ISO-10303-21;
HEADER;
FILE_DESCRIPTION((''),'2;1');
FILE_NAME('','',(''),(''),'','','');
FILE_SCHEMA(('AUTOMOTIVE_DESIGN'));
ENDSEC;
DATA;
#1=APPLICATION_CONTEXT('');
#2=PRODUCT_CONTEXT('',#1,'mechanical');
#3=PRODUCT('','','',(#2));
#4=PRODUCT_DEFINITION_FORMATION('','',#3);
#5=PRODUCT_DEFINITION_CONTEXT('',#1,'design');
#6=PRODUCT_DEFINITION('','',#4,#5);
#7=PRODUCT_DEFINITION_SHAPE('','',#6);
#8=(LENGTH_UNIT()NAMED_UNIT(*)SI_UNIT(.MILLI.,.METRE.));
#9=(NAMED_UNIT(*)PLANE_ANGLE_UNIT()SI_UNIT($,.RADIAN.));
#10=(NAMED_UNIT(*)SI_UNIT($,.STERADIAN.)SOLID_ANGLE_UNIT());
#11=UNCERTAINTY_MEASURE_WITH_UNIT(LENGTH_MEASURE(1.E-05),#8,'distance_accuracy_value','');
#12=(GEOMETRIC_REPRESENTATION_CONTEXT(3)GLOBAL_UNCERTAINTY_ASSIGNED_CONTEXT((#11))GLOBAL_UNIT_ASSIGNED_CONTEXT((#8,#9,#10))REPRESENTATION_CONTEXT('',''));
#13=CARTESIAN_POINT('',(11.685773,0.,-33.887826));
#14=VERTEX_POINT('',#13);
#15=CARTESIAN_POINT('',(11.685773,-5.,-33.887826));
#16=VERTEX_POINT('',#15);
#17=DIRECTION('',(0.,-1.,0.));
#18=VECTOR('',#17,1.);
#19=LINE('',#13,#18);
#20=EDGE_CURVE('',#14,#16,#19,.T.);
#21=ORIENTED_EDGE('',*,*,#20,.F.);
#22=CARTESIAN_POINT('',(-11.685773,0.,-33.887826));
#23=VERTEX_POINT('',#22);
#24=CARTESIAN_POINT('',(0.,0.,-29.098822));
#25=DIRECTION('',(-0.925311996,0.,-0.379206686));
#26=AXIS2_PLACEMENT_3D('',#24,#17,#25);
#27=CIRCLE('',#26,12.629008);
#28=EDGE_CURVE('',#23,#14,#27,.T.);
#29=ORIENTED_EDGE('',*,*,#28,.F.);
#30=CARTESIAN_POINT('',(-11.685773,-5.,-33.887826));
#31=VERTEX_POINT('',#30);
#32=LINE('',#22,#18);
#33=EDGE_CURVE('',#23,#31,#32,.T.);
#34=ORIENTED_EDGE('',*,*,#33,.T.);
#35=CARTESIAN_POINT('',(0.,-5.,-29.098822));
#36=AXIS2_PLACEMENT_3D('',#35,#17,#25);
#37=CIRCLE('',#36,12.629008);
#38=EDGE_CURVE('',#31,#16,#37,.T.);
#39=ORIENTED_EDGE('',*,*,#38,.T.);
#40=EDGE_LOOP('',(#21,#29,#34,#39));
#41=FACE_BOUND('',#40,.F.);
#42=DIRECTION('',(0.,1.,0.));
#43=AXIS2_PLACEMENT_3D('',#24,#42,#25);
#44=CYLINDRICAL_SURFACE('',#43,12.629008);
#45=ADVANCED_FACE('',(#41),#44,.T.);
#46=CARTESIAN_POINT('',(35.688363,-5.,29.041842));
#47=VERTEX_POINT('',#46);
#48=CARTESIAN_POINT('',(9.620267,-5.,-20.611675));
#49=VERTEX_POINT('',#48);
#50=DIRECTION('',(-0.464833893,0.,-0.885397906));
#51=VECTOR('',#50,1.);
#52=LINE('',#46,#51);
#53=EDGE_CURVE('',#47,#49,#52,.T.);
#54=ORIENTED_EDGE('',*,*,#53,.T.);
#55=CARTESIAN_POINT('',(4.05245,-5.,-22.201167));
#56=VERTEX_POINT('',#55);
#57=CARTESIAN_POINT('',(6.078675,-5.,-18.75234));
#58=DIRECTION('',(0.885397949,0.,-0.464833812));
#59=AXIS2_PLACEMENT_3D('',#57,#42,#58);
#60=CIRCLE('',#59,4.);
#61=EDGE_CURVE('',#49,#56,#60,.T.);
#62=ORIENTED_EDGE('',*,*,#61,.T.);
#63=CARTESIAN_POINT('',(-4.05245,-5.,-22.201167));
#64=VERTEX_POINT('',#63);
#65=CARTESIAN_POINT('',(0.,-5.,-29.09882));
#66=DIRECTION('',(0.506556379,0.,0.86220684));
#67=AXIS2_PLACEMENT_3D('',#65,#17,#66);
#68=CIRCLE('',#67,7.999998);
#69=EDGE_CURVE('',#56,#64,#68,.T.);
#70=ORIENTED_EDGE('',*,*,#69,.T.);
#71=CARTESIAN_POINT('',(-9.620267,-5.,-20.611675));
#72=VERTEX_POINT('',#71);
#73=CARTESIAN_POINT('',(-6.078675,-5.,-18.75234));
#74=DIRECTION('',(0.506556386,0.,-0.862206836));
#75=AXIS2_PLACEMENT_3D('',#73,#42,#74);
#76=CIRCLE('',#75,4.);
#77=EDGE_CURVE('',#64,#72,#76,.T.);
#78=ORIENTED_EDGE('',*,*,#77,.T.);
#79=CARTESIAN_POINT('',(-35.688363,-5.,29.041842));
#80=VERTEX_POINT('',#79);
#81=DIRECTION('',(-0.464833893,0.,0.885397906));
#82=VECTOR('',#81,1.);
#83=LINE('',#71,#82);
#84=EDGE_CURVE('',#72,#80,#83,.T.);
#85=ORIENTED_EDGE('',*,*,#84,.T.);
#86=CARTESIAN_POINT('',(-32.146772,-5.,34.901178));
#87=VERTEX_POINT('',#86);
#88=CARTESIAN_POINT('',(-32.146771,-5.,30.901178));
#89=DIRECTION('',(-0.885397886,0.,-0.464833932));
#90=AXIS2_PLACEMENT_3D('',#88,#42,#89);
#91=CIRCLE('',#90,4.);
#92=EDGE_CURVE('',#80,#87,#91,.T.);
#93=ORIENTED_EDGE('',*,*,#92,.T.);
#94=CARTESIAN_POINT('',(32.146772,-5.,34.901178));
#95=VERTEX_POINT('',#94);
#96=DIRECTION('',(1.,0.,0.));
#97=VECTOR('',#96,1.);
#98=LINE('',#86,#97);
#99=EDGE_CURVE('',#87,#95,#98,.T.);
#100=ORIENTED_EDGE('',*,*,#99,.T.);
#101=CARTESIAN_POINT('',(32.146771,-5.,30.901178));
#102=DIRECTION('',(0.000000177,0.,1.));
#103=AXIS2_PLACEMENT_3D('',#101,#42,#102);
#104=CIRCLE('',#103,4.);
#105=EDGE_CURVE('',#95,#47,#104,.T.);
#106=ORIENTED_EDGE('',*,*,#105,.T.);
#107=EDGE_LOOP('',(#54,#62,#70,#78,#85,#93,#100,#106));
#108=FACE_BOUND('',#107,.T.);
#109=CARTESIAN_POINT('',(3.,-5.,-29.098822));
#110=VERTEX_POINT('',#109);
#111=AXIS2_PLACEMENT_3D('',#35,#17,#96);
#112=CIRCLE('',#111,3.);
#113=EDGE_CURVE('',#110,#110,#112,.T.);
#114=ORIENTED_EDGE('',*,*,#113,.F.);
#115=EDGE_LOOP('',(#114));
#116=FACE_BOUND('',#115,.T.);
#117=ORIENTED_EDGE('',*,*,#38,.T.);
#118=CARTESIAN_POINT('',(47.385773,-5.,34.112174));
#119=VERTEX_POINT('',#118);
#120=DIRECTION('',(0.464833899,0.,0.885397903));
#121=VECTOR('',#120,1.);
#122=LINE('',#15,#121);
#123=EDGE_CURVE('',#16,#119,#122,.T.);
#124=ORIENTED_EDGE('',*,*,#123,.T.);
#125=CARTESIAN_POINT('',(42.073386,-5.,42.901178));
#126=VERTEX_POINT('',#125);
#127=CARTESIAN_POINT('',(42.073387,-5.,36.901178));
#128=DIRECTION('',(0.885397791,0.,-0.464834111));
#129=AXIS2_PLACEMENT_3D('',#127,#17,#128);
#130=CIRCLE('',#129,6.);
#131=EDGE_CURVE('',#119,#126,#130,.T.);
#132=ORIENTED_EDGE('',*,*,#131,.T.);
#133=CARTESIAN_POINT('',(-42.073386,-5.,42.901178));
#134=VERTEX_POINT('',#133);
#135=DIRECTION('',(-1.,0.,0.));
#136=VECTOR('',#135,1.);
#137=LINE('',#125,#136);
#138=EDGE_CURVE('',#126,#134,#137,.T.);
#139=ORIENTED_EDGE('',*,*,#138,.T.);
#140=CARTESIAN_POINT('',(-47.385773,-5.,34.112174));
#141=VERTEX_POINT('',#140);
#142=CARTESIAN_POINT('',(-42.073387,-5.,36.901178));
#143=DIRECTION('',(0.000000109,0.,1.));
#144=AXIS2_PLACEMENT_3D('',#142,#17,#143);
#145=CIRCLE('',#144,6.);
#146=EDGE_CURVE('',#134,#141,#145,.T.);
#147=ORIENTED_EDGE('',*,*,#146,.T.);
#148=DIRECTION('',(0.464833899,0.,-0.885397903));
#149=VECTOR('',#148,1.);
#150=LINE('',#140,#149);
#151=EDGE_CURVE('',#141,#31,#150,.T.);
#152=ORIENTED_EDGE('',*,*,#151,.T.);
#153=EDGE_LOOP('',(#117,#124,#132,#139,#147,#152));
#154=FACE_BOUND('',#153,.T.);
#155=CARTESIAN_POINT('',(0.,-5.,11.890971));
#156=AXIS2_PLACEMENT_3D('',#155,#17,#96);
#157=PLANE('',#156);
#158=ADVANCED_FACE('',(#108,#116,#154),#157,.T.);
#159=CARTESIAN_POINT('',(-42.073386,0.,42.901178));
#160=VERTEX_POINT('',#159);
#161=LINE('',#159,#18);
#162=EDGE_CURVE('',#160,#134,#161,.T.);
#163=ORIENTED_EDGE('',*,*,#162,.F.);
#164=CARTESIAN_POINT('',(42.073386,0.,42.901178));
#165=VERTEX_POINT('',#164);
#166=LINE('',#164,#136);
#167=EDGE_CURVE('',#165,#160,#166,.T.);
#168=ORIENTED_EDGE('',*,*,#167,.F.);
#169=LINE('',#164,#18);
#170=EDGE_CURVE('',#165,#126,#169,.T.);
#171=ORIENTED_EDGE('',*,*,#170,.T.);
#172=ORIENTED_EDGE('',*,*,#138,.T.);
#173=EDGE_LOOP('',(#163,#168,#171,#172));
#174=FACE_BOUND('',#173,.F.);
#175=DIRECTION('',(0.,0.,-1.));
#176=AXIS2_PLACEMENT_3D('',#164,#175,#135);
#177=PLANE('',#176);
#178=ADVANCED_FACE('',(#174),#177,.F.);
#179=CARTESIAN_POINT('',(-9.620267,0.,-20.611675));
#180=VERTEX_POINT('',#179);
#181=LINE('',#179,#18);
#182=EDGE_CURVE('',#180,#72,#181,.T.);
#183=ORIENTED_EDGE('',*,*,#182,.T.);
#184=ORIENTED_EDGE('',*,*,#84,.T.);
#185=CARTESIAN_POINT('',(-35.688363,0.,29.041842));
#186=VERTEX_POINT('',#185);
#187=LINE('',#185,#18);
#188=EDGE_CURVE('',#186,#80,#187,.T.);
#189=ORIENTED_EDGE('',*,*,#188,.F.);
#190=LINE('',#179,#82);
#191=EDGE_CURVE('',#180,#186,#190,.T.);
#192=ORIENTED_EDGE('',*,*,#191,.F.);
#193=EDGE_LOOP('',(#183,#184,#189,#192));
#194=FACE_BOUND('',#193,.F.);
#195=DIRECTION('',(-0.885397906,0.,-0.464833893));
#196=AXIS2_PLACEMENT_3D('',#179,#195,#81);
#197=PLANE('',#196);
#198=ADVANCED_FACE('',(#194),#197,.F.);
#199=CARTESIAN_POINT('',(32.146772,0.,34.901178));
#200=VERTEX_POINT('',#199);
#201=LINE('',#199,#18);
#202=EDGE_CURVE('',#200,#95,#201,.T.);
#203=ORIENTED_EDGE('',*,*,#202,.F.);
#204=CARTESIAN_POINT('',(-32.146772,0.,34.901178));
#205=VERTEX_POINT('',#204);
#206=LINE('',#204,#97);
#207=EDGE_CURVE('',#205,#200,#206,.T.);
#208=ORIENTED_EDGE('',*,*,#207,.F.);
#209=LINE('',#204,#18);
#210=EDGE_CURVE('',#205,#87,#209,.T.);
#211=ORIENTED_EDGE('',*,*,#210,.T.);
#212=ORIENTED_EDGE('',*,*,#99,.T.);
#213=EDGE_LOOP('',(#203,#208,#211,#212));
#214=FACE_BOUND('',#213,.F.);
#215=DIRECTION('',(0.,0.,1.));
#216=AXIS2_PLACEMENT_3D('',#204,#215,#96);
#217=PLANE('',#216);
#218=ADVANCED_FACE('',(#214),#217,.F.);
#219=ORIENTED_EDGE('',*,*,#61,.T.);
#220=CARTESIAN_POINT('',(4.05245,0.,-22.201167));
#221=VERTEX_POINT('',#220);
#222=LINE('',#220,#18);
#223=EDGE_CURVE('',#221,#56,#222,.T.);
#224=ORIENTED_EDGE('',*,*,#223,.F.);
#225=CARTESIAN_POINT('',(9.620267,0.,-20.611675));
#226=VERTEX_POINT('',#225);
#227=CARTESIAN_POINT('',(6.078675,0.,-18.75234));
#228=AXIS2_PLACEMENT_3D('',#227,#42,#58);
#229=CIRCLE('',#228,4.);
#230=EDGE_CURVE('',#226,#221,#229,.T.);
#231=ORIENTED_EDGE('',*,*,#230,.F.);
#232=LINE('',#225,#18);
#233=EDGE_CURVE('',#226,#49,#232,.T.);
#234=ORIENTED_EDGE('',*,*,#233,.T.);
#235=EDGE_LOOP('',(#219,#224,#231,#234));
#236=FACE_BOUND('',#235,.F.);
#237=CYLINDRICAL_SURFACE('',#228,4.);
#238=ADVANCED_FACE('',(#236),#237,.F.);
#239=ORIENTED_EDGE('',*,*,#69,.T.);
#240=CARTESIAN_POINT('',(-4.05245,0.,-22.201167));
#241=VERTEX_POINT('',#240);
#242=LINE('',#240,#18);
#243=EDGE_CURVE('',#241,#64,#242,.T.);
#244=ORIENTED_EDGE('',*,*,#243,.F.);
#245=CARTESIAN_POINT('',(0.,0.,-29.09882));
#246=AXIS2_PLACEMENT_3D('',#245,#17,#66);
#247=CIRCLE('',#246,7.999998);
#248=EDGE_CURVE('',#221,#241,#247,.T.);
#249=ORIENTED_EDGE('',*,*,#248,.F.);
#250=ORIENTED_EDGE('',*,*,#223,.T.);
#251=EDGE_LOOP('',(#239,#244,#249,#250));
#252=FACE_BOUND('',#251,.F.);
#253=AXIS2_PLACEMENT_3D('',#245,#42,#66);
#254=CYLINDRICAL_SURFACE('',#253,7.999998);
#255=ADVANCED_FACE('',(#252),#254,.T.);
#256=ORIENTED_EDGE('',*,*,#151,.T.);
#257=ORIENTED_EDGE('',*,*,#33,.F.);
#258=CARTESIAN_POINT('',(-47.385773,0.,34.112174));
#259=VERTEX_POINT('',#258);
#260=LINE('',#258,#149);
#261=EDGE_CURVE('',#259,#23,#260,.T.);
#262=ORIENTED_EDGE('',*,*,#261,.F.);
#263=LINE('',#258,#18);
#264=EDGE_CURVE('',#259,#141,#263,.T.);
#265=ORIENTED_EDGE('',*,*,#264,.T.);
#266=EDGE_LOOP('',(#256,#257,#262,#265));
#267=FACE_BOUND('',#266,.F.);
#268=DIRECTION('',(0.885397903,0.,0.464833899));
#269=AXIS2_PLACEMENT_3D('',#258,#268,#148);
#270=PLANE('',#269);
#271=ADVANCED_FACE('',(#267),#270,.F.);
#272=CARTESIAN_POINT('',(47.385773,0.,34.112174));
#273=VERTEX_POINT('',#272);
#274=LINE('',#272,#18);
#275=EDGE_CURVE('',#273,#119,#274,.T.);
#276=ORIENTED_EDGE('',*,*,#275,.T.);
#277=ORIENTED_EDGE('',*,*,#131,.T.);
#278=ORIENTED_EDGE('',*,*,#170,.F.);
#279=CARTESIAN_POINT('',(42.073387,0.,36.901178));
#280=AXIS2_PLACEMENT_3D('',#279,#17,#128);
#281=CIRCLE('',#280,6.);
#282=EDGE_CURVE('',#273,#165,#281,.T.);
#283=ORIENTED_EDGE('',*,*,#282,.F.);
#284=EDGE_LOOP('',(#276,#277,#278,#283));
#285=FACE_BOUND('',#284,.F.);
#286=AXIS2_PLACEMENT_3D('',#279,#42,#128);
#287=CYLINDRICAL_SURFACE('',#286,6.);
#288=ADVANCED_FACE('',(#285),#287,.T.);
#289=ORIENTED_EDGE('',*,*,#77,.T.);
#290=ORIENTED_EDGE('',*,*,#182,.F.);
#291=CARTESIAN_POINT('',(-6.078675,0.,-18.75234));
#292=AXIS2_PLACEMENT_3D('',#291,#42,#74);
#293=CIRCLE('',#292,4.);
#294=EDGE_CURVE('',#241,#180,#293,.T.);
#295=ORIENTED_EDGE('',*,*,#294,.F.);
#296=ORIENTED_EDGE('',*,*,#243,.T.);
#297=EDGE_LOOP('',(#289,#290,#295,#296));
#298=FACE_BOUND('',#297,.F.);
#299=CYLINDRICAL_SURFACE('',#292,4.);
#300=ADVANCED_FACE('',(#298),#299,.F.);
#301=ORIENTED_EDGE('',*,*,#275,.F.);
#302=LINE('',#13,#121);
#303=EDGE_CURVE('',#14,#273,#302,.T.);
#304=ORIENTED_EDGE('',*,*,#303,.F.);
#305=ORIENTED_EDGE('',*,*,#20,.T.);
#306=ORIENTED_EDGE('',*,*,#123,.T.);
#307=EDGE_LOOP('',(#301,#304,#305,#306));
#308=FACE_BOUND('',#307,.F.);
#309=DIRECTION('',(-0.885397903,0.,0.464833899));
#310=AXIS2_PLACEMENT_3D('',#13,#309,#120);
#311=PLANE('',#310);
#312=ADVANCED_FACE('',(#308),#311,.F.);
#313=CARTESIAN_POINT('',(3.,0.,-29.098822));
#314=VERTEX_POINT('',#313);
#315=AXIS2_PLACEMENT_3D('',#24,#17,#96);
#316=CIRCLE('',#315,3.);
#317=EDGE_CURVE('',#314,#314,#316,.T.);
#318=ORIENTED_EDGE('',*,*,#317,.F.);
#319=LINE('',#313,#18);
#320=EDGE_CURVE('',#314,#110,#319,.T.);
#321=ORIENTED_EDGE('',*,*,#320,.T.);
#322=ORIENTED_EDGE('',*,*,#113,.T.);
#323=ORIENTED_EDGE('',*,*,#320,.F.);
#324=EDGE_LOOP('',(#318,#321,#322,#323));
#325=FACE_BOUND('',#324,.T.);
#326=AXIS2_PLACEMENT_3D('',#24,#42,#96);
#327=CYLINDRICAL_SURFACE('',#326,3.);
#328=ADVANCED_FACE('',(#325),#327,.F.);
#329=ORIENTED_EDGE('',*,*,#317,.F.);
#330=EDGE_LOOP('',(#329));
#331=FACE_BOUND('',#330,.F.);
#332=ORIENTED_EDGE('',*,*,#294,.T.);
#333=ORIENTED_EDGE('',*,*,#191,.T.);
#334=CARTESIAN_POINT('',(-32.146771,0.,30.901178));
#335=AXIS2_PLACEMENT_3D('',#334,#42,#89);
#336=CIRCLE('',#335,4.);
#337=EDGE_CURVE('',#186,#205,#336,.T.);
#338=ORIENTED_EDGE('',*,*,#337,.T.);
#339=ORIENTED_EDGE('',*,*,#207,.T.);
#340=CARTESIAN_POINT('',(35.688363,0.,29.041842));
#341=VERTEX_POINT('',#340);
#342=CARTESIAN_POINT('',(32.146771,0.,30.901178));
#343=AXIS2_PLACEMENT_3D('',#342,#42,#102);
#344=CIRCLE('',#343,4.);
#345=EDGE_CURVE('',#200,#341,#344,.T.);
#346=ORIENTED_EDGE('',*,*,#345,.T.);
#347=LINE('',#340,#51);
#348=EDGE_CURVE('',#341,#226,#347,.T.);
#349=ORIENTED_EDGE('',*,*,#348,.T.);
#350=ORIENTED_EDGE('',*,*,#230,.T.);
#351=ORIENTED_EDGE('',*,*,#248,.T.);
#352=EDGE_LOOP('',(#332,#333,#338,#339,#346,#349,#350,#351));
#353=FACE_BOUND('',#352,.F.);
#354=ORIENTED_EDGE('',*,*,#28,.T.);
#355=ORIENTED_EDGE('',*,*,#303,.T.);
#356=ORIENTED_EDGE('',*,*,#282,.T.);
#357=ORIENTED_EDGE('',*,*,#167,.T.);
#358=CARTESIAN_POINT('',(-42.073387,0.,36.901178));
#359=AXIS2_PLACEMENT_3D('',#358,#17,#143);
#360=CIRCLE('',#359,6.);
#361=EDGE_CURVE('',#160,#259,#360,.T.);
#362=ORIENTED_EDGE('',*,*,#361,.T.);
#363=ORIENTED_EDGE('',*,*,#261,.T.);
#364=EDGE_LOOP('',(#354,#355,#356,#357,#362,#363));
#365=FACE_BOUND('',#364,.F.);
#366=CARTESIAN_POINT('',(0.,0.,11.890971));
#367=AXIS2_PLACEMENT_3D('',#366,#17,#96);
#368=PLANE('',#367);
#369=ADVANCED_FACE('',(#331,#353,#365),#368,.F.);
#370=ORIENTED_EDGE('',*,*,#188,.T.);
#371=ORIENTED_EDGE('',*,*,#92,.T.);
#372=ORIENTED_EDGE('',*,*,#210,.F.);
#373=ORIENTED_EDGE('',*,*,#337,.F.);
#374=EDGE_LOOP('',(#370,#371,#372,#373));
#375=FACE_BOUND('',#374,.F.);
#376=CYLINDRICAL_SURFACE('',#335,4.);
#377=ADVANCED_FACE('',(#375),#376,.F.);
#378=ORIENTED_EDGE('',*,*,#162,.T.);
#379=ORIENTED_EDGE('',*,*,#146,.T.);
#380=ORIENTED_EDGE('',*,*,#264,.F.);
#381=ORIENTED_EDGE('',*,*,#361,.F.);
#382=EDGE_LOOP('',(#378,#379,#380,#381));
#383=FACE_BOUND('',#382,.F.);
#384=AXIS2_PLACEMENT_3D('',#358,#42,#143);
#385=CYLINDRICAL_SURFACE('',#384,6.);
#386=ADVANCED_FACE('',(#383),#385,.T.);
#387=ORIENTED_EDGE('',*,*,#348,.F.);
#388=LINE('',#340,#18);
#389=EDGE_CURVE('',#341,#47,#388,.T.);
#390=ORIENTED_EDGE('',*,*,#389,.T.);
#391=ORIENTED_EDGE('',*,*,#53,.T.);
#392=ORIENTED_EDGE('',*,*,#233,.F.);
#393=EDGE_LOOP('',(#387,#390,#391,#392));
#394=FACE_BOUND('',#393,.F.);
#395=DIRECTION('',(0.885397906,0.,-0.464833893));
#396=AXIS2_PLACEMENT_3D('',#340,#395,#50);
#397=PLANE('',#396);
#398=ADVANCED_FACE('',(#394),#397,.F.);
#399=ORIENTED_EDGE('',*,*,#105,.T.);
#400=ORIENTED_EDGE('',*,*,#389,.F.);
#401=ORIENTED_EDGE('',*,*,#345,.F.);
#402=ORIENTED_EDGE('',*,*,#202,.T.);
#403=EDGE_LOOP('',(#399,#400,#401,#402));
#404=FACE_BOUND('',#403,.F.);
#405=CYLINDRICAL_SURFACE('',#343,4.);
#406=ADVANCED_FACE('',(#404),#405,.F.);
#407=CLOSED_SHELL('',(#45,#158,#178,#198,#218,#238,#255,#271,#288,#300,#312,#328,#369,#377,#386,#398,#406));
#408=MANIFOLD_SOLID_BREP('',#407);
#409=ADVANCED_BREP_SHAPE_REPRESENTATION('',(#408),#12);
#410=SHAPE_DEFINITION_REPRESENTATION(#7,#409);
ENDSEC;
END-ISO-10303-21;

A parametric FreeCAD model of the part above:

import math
import FreeCAD as App
import Part
import Sketcher

doc = App.newDocument("Part")
body = doc.addObject("PartDesign::Body", "Body")

sketch1 = body.newObject("Sketcher::SketchObject", "Sketch")
sketch1.AttachmentSupport = (doc.getObject("XZ_Plane"), [""])
sketch1.MapMode = "FlatFace"
sketch1.addGeometry([
    Part.LineSegment(App.Vector(42.073386, 42.901178, 0), App.Vector(-42.073386, 42.901178, 0)),
    Part.ArcOfCircle(Part.Circle(App.Vector(-42.073387, 36.901178, 0), App.Vector(0, 0, 1), 6), math.radians(89.999994), math.radians(207.699487)),
    Part.LineSegment(App.Vector(-47.385773, 34.112174, 0), App.Vector(-11.685773, -33.887826, 0)),
    Part.ArcOfCircle(Part.Circle(App.Vector(0, -29.098822, 0), App.Vector(0, 0, 1), 12.629008), math.radians(-157.715448), math.radians(-22.284552)),
    Part.LineSegment(App.Vector(11.685773, -33.887826, 0), App.Vector(47.385773, 34.112174, 0)),
    Part.ArcOfCircle(Part.Circle(App.Vector(42.073387, 36.901178, 0), App.Vector(0, 0, 1), 6), math.radians(-27.699487), math.radians(90.000006)),
    Part.Circle(App.Vector(0, -29.098822, 0), App.Vector(0, 0, 1), 3),
    Part.ArcOfCircle(Part.Circle(App.Vector(-6.078675, -18.75234, 0), App.Vector(0, 0, 1), 4), math.radians(-152.300533), math.radians(-59.565277)),
    Part.LineSegment(App.Vector(-9.620267, -20.611675, 0), App.Vector(-35.688363, 29.041842, 0)),
    Part.ArcOfCircle(Part.Circle(App.Vector(-32.146771, 30.901178, 0), App.Vector(0, 0, 1), 4), math.radians(90.00001), math.radians(207.699475)),
    Part.LineSegment(App.Vector(-32.146772, 34.901178, 0), App.Vector(32.146772, 34.901178, 0)),
    Part.ArcOfCircle(Part.Circle(App.Vector(32.146771, 30.901178, 0), App.Vector(0, 0, 1), 4), math.radians(-27.699475), math.radians(89.99999)),
    Part.LineSegment(App.Vector(35.688363, 29.041842, 0), App.Vector(9.620267, -20.611675, 0)),
    Part.ArcOfCircle(Part.Circle(App.Vector(6.078675, -18.75234, 0), App.Vector(0, 0, 1), 4), math.radians(-120.434723), math.radians(-27.699467)),
    Part.ArcOfCircle(Part.Circle(App.Vector(0, -29.09882, 0), App.Vector(0, 0, 1), 7.999998), math.radians(59.565277), math.radians(120.434723)),
], False)
sketch1.addConstraint([
    Sketcher.Constraint("Tangent", 0, 2, 1, 1),
    Sketcher.Constraint("Tangent", 1, 2, 2, 1),
    Sketcher.Constraint("Coincident", 2, 2, 3, 1),
    Sketcher.Constraint("Coincident", 3, 2, 4, 1),
    Sketcher.Constraint("Tangent", 4, 2, 5, 1),
    Sketcher.Constraint("Tangent", 5, 2, 0, 1),
    Sketcher.Constraint("Tangent", 7, 1, 8, 1),
    Sketcher.Constraint("Tangent", 8, 2, 9, 2),
    Sketcher.Constraint("Tangent", 9, 1, 10, 1),
    Sketcher.Constraint("Tangent", 10, 2, 11, 2),
    Sketcher.Constraint("Tangent", 11, 1, 12, 1),
    Sketcher.Constraint("Tangent", 12, 2, 13, 2),
    Sketcher.Constraint("Tangent", 13, 1, 14, 1),
    Sketcher.Constraint("Tangent", 14, 2, 7, 2),
    Sketcher.Constraint("Horizontal", 0),
    Sketcher.Constraint("Horizontal", 10),
    Sketcher.Constraint("Coincident", 6, 3, 3, 3),
    Sketcher.Constraint("Coincident", 14, 3, 3, 3),
    Sketcher.Constraint("Equal", 1, 5),
    Sketcher.Constraint("Equal", 7, 9),
    Sketcher.Constraint("Equal", 9, 11),
    Sketcher.Constraint("Equal", 11, 13),
    Sketcher.Constraint("Symmetric", 7, 3, 13, 3, -2),
    Sketcher.Constraint("Parallel", 2, 8),
    Sketcher.Constraint("Parallel", 4, 12),
    Sketcher.Constraint("Horizontal", 2, 2, 3, 2),
    Sketcher.Constraint("Horizontal", 1, 2, 4, 2),
    Sketcher.Constraint("Diameter", 6, 6.0),
    Sketcher.Constraint("Radius", 1, 6.0),
    Sketcher.Constraint("Radius", 7, 4.0),
    Sketcher.Constraint("DistanceY", 3, 3, 1, 3, 66.0),
    Sketcher.Constraint("DistanceY", 9, 3, 1, 3, 6.000001),
    Sketcher.Constraint("DistanceY", 3, 2, 4, 2, 68.0),
    Sketcher.Constraint("DistanceX", 3, 2, 4, 2, 35.7),
    Sketcher.Constraint("Radius", 3, 12.629008),
    Sketcher.Constraint("Radius", 14, 7.999998),
    Sketcher.Constraint("DistanceX", 1, 2, 9, 3, 15.239002),
    Sketcher.Constraint("DistanceY", -1, 1, 1, 3, 36.901178),
])
pad1 = body.newObject("PartDesign::Pad", "Pad")
pad1.Profile = sketch1
pad1.Length = 5

doc.recompute()
